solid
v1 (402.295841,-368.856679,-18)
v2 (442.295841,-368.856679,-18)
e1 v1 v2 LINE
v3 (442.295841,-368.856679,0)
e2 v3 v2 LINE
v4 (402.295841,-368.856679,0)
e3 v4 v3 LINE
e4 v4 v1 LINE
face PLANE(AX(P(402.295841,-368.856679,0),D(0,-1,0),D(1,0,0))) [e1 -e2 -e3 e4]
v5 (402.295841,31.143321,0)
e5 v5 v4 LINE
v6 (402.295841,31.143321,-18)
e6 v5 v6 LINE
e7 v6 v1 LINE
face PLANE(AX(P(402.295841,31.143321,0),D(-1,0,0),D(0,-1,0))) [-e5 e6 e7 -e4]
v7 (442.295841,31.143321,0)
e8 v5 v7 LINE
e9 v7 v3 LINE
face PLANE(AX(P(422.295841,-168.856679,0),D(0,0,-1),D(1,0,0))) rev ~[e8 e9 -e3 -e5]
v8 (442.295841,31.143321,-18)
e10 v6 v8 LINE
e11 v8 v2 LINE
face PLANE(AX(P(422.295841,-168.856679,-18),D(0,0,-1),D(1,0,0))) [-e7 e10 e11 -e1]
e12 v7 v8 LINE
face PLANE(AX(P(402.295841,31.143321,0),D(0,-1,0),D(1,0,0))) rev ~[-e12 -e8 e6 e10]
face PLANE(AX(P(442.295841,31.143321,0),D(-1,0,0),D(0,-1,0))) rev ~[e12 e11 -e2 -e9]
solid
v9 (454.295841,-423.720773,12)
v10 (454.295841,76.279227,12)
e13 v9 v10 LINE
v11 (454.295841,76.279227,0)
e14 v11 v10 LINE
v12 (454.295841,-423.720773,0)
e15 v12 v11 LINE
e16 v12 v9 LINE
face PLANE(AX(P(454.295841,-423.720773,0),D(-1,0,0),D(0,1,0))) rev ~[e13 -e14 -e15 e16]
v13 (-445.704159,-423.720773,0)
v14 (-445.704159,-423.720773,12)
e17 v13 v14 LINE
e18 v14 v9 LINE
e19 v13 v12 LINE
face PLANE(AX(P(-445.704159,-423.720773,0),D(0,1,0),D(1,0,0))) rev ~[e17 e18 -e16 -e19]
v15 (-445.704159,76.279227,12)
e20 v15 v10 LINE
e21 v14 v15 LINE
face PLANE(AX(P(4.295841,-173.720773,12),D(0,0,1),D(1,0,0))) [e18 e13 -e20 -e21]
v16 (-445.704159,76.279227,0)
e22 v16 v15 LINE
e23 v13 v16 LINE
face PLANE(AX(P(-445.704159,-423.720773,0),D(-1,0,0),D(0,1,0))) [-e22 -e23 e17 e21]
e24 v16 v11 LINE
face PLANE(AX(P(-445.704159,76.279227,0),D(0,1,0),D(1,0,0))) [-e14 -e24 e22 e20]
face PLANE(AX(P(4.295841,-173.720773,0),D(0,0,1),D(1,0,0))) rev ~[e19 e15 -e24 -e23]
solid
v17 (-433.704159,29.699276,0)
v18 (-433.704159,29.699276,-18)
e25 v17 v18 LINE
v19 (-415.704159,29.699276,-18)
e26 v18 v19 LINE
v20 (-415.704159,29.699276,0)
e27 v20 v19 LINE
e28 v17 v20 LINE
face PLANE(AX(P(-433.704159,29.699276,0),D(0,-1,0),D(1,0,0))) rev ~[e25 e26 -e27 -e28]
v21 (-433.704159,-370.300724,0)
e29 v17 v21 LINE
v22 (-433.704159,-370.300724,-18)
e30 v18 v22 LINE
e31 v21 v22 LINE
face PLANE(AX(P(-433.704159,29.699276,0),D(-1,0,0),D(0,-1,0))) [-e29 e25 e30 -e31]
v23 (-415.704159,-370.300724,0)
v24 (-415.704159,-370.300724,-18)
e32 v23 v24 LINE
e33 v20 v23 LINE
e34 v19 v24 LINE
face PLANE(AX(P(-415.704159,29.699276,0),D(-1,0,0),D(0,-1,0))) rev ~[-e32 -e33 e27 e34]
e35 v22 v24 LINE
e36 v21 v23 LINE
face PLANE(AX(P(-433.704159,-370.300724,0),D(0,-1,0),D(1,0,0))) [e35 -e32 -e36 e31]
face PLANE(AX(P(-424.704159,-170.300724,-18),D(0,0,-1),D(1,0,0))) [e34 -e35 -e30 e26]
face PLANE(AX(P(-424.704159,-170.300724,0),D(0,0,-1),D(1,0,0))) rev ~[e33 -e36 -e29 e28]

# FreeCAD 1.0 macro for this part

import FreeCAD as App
import Part
import Sketcher

V = App.Vector
Q = App.Units.Quantity


def add_polygon(sketch, points):
    """Adds a closed chain of lines whose ends are joined by coincident constraints."""
    first, n = sketch.GeometryCount, len(points)
    for a, b in zip(points, points[1:] + points[:1]):
        sketch.addGeometry(Part.LineSegment(App.Vector(*a, 0), App.Vector(*b, 0)), False)
    for i in range(n):
        sketch.addConstraint(Sketcher.Constraint("Coincident", first + i, 2, first + (i + 1) % n, 1))

doc = App.newDocument("Part")
body = doc.addObject("PartDesign::Body", "Body")

# Sketch on XY plane
sketch1 = body.newObject("Sketcher::SketchObject", "Sketch")
sketch1.AttachmentSupport = (doc.getObject("XY_Plane"), [""])
sketch1.MapMode = "FlatFace"
add_polygon(sketch1, [(-446, 76), (-446, -424), (454, -424), (454, 76)])  # lines 0-3
sketch1.addConstraint([
    Sketcher.Constraint("Vertical", 0),
    Sketcher.Constraint("Horizontal", 1),
    Sketcher.Constraint("Vertical", 2),
    Sketcher.Constraint("Horizontal", 3),
    Sketcher.Constraint("DistanceX", 1, 1, 1, 2, Q("900 mm")),
    Sketcher.Constraint("DistanceY", 0, 2, 0, 1, Q("500 mm")),
    Sketcher.Constraint("DistanceX", 0, 2, -1, 1, Q("445.704159 mm")),
    Sketcher.Constraint("DistanceY", 0, 2, -1, 1, Q("423.720773 mm")),
])
pad1 = body.newObject("PartDesign::Pad", "Pad")
pad1.Profile = sketch1
pad1.Length = 12
body2 = doc.addObject("PartDesign::Body", "Body001")
body2.AllowCompound = True

# Sketch on XY plane
sketch2 = body2.newObject("Sketcher::SketchObject", "Sketch001")
sketch2.AttachmentSupport = (doc.getObject("XY_Plane001"), [""])
sketch2.MapMode = "FlatFace"
add_polygon(sketch2, [(-434, -370), (-434, 30), (-416, 30), (-416, -370)])  # lines 0-3
add_polygon(sketch2, [(402, -369), (402, 31), (442, 31), (442, -369)])  # lines 4-7
sketch2.addConstraint([
    Sketcher.Constraint("Vertical", 0),
    Sketcher.Constraint("Horizontal", 1),
    Sketcher.Constraint("Vertical", 2),
    Sketcher.Constraint("Horizontal", 3),
    Sketcher.Constraint("Vertical", 4),
    Sketcher.Constraint("Horizontal", 5),
    Sketcher.Constraint("Vertical", 6),
    Sketcher.Constraint("Horizontal", 7),
    Sketcher.Constraint("Equal", 2, 4),
    Sketcher.Constraint("DistanceX", 1, 1, 1, 2, Q("18 mm")),
    Sketcher.Constraint("DistanceX", 5, 1, 5, 2, Q("40 mm")),
    Sketcher.Constraint("DistanceY", 0, 1, 0, 2, Q("400 mm")),
    Sketcher.Constraint("DistanceX", 1, 2, 4, 2, Q("818 mm")),
    Sketcher.Constraint("DistanceX", 0, 2, -1, 1, Q("433.704159 mm")),
    Sketcher.Constraint("DistanceY", -1, 1, 4, 2, Q("31.143321 mm")),
    Sketcher.Constraint("DistanceY", -1, 1, 0, 2, Q("29.699276 mm")),
])
pad2 = body2.newObject("PartDesign::Pad", "Pad001")
pad2.Profile = sketch2
pad2.Length = 18
pad2.Reversed = True

doc.recompute()
